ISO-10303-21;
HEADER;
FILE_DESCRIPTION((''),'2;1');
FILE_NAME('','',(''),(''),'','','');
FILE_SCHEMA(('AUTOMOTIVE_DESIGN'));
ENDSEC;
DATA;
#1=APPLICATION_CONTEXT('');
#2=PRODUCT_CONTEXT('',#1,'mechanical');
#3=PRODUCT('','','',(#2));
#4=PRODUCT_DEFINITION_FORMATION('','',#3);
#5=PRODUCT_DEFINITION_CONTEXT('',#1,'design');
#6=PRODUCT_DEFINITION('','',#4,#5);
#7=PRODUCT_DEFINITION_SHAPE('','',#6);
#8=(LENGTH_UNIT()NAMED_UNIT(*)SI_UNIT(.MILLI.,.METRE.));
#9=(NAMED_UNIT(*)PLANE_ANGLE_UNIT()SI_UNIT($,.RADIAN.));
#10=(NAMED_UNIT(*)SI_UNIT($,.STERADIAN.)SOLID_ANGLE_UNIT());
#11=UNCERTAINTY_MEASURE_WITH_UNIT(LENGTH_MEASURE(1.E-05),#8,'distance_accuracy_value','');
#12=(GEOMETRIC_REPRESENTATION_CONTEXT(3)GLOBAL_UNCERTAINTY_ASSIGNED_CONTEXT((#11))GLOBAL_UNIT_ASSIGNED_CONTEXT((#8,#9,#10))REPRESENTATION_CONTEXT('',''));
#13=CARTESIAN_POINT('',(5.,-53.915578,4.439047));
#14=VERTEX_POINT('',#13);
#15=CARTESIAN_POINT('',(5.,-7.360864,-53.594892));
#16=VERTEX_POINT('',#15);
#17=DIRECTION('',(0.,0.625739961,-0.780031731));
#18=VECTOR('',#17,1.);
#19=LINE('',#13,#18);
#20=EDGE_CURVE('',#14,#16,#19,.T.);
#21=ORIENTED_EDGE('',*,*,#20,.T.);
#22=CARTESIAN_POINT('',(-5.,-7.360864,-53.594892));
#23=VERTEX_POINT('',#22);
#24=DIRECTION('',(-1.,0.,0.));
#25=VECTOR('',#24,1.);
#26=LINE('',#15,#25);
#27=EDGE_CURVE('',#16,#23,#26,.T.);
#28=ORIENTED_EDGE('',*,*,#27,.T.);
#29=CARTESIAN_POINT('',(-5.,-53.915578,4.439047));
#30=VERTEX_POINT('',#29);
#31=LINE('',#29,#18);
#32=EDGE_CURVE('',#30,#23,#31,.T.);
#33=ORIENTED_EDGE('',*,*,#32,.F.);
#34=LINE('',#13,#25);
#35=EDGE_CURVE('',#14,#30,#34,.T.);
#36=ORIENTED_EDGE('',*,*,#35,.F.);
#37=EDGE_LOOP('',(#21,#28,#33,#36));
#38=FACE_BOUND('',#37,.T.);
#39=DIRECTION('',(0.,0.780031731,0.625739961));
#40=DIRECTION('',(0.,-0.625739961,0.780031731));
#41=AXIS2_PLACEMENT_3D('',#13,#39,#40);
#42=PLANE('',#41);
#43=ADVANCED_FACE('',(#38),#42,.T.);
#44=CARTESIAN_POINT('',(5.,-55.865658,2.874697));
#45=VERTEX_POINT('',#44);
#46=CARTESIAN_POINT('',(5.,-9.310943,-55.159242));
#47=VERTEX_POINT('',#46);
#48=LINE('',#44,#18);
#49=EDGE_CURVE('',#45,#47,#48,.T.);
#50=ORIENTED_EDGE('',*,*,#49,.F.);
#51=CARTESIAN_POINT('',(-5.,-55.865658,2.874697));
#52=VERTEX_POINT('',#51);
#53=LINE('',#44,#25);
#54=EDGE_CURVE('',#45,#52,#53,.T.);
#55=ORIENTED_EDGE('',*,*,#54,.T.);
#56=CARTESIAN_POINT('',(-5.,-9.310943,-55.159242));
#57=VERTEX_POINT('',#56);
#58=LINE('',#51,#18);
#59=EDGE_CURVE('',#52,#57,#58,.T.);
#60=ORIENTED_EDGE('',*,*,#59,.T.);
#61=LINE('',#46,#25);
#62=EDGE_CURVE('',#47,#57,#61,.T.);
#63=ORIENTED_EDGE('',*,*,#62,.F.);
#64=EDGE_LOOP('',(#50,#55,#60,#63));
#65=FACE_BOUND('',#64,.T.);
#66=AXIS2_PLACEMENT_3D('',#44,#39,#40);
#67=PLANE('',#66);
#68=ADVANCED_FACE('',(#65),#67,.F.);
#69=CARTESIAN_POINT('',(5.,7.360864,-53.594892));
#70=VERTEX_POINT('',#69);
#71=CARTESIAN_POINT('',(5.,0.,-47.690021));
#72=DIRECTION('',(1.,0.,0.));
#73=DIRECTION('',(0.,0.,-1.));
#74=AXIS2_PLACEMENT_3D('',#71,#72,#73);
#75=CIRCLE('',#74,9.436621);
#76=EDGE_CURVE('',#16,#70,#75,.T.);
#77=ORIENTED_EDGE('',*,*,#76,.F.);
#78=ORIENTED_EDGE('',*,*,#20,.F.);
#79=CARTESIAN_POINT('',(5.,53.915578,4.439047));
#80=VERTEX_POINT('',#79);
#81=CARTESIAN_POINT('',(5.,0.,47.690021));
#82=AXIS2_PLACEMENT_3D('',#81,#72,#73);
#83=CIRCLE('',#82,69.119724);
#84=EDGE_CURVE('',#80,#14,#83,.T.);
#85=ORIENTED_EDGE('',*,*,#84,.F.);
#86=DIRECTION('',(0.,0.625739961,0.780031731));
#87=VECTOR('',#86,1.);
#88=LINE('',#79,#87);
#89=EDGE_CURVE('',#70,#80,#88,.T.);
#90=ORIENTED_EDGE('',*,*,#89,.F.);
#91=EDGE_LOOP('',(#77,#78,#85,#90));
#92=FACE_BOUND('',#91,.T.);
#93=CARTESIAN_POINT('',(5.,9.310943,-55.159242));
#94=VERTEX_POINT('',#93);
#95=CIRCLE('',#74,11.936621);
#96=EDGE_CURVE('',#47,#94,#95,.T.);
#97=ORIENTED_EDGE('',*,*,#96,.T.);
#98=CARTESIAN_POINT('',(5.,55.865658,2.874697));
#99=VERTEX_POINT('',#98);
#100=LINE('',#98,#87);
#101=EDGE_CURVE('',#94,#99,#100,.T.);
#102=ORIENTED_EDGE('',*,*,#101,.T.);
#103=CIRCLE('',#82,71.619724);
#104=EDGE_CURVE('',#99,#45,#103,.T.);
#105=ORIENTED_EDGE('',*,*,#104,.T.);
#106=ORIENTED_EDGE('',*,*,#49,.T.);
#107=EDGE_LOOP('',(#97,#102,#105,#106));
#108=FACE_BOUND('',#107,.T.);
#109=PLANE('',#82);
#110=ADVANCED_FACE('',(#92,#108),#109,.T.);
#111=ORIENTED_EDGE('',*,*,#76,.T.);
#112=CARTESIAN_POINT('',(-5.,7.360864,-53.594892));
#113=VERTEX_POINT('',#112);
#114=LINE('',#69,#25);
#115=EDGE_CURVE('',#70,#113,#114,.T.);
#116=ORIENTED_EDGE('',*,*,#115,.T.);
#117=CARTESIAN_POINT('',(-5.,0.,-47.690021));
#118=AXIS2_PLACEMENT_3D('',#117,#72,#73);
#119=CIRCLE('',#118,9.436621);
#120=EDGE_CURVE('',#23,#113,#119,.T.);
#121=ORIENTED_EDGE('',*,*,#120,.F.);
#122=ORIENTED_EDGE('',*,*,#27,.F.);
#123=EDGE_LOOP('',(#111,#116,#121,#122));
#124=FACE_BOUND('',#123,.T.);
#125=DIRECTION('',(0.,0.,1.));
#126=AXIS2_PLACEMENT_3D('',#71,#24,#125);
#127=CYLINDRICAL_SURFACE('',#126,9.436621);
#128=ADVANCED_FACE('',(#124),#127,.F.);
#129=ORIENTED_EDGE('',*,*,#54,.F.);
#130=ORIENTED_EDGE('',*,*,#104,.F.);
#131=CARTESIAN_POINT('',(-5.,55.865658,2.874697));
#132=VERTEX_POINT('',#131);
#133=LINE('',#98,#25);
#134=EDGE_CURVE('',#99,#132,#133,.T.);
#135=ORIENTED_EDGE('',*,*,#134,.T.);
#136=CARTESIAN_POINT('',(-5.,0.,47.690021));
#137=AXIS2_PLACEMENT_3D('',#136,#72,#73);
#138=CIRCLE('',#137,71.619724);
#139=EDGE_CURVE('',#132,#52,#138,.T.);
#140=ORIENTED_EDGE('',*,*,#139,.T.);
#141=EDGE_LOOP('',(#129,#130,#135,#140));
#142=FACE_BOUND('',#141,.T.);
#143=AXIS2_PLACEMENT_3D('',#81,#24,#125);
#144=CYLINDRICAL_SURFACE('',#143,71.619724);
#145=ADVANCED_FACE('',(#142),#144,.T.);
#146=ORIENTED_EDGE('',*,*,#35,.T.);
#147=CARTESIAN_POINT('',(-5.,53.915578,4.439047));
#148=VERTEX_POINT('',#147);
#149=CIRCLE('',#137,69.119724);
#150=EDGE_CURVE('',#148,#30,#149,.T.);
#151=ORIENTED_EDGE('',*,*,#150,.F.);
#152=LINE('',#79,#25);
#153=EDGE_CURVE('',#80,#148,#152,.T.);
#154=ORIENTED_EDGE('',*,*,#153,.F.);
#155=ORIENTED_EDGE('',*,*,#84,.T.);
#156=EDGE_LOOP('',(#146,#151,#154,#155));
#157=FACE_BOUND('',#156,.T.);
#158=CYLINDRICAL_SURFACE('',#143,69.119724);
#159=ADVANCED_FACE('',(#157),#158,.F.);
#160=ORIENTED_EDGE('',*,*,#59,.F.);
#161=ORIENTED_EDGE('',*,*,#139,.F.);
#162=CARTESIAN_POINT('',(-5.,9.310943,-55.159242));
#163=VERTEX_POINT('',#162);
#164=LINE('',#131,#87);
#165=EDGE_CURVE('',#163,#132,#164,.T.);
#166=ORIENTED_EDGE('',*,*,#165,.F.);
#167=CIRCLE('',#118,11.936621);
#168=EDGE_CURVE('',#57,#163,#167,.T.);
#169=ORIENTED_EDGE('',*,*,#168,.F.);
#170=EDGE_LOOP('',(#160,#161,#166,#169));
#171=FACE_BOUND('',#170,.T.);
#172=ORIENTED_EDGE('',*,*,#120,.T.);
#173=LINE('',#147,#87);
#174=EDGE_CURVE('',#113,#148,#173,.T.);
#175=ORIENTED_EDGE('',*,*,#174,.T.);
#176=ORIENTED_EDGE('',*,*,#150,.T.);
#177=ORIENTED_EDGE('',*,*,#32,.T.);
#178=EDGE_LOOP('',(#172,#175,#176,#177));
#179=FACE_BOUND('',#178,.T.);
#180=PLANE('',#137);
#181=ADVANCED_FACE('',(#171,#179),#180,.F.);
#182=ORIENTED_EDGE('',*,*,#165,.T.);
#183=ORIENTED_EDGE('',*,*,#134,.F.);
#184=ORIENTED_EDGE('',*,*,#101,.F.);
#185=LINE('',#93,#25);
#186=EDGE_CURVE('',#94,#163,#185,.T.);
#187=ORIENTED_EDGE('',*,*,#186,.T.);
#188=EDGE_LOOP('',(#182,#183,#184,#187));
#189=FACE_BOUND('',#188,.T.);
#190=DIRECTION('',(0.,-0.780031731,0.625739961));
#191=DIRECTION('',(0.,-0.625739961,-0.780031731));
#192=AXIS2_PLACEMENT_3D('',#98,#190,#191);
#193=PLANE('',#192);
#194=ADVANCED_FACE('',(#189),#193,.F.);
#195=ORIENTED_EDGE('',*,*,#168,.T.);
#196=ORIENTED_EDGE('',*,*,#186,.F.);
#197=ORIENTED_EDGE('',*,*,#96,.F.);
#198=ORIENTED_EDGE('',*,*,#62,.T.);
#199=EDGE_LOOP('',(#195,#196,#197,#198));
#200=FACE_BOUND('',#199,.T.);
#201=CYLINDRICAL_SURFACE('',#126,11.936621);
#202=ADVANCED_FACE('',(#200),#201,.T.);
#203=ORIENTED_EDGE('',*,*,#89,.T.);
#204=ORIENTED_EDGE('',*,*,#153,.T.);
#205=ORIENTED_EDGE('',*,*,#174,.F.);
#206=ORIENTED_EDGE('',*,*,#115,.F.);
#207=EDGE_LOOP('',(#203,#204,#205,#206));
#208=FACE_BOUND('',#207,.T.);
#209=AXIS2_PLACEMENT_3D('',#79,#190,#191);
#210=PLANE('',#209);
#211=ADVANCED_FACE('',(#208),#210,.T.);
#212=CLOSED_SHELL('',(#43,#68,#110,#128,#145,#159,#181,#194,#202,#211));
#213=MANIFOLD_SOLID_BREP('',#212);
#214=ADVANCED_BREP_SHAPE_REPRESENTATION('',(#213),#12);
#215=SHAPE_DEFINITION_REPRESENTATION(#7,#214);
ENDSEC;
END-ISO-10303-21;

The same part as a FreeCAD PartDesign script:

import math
import FreeCAD as App
import Part
import Sketcher
from FreeCAD import Vector
Q = App.Units.Quantity

doc = App.newDocument("Part")
body = doc.addObject("PartDesign::Body", "Body")

# Sketch on YZ plane
sketch1 = doc.addObject("Sketcher::SketchObject", "Sketch")
body.addObject(sketch1)
sketch1.AttachmentSupport = (doc.YZ_Plane, [""])
sketch1.MapMode = "FlatFace"
sketch1.addGeometry([
    Part.LineSegment(Vector(9, -55, 0), Vector(56, 3, 0)),  # 0
    Part.ArcOfCircle(Part.Circle(Vector(0, 48, 0), Vector(0, 0, 1), 72), math.radians(-39), math.radians(219)),  # 1
    Part.LineSegment(Vector(-56, 3, 0), Vector(-9, -55, 0)),  # 2
    Part.ArcOfCircle(Part.Circle(Vector(0, -48, 0), Vector(0, 0, 1), 12), math.radians(-141), math.radians(-39)),  # 3
    Part.LineSegment(Vector(54, 4, 0), Vector(7, -54, 0)),  # 4
    Part.ArcOfCircle(Part.Circle(Vector(0, -48, 0), Vector(0, 0, 1), 9), math.radians(-141), math.radians(-39)),  # 5
    Part.LineSegment(Vector(-7, -54, 0), Vector(-54, 4, 0)),  # 6
    Part.ArcOfCircle(Part.Circle(Vector(0, 48, 0), Vector(0, 0, 1), 69), math.radians(-39), math.radians(219)),  # 7
], False)
sketch1.addConstraint([
    Sketcher.Constraint("Tangent", 0, 2, 1, 1),
    Sketcher.Constraint("Tangent", 1, 2, 2, 1),
    Sketcher.Constraint("Tangent", 2, 2, 3, 1),
    Sketcher.Constraint("Tangent", 3, 2, 0, 1),
    Sketcher.Constraint("Tangent", 4, 2, 5, 2),
    Sketcher.Constraint("Tangent", 5, 1, 6, 1),
    Sketcher.Constraint("Tangent", 6, 2, 7, 2),
    Sketcher.Constraint("Tangent", 7, 1, 4, 1),
    Sketcher.Constraint("Coincident", 5, 3, 3, 3),
    Sketcher.Constraint("Coincident", 7, 3, 1, 3),
    Sketcher.Constraint("Symmetric", 1, 3, 3, 3, -1, 1),
    Sketcher.Constraint("PointOnObject", 1, 3, -2),
    Sketcher.Constraint("Parallel", 0, 4),
    Sketcher.Constraint("Radius", 3, Q("11.936621 mm")),
    Sketcher.Constraint("Radius", 5, Q("9.436621 mm")),
    Sketcher.Constraint("Radius", 1, Q("71.619724 mm")),
    Sketcher.Constraint("DistanceX", 2, 2, 0, 2, Q("65.176601 mm")),
])
pad1 = doc.addObject("PartDesign::Pad", "Pad")
body.addObject(pad1)
pad1.Profile = sketch1
pad1.Length = 10
pad1.Midplane = True

doc.recompute()
